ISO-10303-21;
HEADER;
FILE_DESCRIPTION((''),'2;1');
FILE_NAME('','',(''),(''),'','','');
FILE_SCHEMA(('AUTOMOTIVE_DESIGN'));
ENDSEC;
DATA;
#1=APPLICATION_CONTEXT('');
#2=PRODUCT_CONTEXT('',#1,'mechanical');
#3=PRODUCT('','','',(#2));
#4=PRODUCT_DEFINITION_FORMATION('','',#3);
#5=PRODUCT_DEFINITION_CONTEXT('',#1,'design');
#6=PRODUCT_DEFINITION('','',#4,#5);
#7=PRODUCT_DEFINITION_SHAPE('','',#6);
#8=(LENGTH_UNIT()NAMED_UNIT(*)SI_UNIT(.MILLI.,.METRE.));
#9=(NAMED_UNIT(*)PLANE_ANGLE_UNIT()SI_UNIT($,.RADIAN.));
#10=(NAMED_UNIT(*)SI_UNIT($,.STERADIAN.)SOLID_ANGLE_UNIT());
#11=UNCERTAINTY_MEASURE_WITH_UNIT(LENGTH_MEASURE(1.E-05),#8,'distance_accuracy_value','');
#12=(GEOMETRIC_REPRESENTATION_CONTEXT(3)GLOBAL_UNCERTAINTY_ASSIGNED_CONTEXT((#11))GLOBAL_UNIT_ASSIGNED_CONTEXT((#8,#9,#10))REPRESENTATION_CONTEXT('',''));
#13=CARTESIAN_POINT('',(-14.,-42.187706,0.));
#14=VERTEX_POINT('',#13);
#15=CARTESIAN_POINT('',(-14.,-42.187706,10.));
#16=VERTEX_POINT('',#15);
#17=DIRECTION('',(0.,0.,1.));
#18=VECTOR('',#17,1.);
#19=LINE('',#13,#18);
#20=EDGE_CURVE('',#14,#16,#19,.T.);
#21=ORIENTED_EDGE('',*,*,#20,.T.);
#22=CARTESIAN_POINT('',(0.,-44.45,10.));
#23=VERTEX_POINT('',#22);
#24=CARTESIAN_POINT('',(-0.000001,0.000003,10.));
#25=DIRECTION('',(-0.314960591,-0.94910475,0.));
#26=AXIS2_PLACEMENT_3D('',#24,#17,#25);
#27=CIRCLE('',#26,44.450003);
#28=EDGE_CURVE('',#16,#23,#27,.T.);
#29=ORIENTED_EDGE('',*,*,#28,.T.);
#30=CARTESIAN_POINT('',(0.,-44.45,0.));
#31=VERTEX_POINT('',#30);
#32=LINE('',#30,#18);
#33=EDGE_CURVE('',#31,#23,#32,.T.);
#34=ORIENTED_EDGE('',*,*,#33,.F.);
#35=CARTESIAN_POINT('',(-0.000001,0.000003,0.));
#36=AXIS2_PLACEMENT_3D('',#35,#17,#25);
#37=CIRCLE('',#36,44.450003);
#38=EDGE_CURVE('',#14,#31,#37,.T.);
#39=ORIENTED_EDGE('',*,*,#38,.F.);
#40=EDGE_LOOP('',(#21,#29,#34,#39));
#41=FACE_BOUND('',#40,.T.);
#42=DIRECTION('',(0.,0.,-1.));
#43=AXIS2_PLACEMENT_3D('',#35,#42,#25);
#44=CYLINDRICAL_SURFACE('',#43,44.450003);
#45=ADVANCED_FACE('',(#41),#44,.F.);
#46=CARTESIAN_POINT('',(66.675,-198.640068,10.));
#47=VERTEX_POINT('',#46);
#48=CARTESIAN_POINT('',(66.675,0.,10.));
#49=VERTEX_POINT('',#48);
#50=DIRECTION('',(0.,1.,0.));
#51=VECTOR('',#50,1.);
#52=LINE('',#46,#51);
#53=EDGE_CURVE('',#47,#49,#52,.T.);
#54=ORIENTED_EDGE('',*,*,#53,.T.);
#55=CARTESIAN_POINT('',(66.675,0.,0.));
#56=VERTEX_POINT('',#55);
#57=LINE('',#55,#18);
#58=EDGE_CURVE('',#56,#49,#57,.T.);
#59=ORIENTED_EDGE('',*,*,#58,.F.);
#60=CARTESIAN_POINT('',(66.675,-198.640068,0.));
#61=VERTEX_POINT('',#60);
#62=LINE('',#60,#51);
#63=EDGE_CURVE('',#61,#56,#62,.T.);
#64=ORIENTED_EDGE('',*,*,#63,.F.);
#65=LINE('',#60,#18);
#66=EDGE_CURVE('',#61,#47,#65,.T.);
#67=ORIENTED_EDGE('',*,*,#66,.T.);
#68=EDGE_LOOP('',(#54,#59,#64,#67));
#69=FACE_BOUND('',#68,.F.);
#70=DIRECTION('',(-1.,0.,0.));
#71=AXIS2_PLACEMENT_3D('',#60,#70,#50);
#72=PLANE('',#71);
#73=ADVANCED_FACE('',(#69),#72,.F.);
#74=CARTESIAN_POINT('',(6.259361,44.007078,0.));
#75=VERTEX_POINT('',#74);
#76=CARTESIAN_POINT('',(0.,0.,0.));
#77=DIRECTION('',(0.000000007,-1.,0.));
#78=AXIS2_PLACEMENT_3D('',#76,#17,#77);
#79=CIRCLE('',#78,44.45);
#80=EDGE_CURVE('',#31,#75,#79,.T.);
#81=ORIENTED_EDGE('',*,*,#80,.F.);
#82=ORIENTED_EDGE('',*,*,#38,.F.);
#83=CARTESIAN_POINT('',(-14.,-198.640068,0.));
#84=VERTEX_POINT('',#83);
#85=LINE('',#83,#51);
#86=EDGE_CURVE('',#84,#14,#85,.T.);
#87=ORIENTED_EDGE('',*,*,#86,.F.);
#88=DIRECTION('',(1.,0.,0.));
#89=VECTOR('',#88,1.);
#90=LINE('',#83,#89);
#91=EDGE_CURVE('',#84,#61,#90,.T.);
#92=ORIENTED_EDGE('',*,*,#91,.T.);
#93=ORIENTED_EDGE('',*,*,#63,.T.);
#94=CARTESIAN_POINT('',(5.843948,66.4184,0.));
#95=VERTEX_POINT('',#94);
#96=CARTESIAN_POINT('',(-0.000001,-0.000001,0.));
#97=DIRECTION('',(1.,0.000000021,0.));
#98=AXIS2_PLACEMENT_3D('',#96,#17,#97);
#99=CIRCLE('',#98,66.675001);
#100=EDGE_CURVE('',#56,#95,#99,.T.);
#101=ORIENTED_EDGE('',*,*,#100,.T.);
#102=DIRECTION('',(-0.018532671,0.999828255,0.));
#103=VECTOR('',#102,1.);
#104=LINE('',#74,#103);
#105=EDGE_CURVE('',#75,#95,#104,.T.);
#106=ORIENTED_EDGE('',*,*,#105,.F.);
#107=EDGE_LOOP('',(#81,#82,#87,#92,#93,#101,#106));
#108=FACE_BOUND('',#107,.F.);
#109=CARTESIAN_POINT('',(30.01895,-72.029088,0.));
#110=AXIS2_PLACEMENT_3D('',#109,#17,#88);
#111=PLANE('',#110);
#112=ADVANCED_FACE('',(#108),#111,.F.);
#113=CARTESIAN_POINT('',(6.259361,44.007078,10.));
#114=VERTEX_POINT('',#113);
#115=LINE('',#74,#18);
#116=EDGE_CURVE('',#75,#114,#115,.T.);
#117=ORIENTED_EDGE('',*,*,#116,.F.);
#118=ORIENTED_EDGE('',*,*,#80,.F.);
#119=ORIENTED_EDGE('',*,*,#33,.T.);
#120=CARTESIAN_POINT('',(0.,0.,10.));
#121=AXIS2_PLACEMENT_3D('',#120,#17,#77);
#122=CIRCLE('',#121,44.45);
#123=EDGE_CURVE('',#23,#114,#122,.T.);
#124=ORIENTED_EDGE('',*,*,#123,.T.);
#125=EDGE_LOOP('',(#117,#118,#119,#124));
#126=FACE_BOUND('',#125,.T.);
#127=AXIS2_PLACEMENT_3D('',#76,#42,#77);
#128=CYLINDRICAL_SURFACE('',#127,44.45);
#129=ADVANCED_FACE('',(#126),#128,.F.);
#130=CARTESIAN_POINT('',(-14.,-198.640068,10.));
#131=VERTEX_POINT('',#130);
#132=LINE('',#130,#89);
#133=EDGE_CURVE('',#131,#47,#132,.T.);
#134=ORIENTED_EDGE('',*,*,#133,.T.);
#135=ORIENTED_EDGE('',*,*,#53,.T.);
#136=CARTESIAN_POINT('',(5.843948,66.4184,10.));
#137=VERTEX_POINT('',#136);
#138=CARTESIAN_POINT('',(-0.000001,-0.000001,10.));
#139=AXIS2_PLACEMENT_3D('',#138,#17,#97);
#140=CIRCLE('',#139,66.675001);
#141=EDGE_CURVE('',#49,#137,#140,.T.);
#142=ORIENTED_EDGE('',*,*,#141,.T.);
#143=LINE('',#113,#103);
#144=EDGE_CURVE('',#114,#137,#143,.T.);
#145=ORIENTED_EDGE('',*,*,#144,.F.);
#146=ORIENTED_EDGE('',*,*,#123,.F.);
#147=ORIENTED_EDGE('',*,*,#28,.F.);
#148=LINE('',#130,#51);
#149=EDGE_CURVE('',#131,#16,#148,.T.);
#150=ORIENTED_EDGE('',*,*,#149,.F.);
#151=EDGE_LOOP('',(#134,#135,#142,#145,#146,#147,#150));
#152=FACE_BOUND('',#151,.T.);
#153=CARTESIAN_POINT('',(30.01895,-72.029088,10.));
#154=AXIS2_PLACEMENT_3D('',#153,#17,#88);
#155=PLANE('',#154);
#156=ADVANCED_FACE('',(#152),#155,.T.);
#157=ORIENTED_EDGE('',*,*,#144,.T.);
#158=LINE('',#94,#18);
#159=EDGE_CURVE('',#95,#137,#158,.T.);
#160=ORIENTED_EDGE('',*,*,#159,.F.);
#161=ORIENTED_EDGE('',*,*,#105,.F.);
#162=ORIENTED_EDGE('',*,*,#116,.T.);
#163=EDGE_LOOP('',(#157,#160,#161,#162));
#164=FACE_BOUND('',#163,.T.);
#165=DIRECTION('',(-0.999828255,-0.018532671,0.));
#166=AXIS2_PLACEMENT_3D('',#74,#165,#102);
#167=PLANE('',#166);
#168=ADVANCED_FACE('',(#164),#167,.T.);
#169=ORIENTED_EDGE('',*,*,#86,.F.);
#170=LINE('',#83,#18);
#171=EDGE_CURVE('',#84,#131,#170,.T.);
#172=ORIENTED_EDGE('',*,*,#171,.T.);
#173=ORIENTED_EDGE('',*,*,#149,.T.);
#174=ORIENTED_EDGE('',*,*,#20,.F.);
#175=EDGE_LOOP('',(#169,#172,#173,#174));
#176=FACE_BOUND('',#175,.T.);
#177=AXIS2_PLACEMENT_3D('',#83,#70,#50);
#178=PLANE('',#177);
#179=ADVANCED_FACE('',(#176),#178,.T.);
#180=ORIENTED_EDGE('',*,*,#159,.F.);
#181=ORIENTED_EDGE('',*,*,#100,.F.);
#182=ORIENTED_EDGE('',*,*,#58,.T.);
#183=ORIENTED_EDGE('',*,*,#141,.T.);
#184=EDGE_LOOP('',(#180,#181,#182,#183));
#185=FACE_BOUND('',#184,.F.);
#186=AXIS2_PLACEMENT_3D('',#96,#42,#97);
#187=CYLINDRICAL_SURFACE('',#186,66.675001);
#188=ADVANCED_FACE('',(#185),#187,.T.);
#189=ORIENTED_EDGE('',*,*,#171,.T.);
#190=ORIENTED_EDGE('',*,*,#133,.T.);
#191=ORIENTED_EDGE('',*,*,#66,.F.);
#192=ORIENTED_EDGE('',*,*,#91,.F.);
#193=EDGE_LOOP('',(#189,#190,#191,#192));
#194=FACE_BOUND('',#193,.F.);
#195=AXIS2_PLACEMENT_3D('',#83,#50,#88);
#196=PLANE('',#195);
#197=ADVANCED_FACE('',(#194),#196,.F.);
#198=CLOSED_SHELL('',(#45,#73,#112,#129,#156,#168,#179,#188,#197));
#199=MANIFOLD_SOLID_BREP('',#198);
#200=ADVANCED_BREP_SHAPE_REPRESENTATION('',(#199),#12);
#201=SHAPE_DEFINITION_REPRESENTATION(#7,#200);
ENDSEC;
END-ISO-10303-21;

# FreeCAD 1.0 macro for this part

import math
import FreeCAD as App
import Part
import Sketcher

V = App.Vector
Q = App.Units.Quantity

doc = App.newDocument("Part")
body = doc.addObject("PartDesign::Body", "Body")

# Sketch on XY plane
sketch1 = doc.addObject("Sketcher::SketchObject", "Sketch")
body.addObject(sketch1)
sketch1.AttachmentSupport = (doc.XY_Plane, [""])
sketch1.MapMode = "FlatFace"
sketch1.addGeometry([
    Part.LineSegment(V(67, -199, 0), V(67, 0, 0)),  # 0
    Part.ArcOfCircle(Part.Circle(V(0, 0, 0), V(0, 0, 1), 67), math.radians(0), math.radians(85)),  # 1
    Part.LineSegment(V(6, 66, 0), V(6, 44, 0)),  # 2
    Part.ArcOfCircle(Part.Circle(V(0, 0, 0), V(0, 0, 1), 44), math.radians(-90), math.radians(82)),  # 3
    Part.ArcOfCircle(Part.Circle(V(0, 0, 0), V(0, 0, 1), 44), math.radians(-108.36), math.radians(-90)),  # 4
    Part.LineSegment(V(-14, -42, 0), V(-14, -199, 0)),  # 5
    Part.LineSegment(V(-14, -199, 0), V(67, -199, 0)),  # 6
], False)
sketch1.addConstraint([
    Sketcher.Constraint("Tangent", 0, 2, 1, 1),
    Sketcher.Constraint("Coincident", 1, 2, 2, 1),
    Sketcher.Constraint("Coincident", 2, 2, 3, 2),
    Sketcher.Constraint("Tangent", 3, 1, 4, 2),
    Sketcher.Constraint("Coincident", 4, 1, 5, 1),
    Sketcher.Constraint("Coincident", 5, 2, 6, 1),
    Sketcher.Constraint("Coincident", 6, 2, 0, 1),
    Sketcher.Constraint("Vertical", 0),
    Sketcher.Constraint("Vertical", 5),
    Sketcher.Constraint("Horizontal", 6),
    Sketcher.Constraint("Coincident", 1, 3, -1, 1),
    Sketcher.Constraint("Coincident", 3, 3, -1, 1),
    Sketcher.Constraint("PointOnObject", 3, 1, -2),
    Sketcher.Constraint("Radius", 3, Q("1.75 in")),
    Sketcher.Constraint("Radius", 4, Q("1.7500001 in")),
    Sketcher.Constraint("Radius", 1, Q("2.625 in")),
    Sketcher.Constraint("DistanceX", 6, 1, 6, 2, Q("80.675 mm")),
    Sketcher.Constraint("DistanceY", 0, 1, 0, 2, Q("198.640068 mm")),
    Sketcher.Constraint("DistanceY", -1, 1, 1, 2, Q("66.4184 mm")),
    Sketcher.Constraint("Distance", 2, Q("22.415172 mm")),
])
pad1 = doc.addObject("PartDesign::Pad", "Pad")
body.addObject(pad1)
pad1.Profile = sketch1
pad1.Length = 10

doc.recompute()
